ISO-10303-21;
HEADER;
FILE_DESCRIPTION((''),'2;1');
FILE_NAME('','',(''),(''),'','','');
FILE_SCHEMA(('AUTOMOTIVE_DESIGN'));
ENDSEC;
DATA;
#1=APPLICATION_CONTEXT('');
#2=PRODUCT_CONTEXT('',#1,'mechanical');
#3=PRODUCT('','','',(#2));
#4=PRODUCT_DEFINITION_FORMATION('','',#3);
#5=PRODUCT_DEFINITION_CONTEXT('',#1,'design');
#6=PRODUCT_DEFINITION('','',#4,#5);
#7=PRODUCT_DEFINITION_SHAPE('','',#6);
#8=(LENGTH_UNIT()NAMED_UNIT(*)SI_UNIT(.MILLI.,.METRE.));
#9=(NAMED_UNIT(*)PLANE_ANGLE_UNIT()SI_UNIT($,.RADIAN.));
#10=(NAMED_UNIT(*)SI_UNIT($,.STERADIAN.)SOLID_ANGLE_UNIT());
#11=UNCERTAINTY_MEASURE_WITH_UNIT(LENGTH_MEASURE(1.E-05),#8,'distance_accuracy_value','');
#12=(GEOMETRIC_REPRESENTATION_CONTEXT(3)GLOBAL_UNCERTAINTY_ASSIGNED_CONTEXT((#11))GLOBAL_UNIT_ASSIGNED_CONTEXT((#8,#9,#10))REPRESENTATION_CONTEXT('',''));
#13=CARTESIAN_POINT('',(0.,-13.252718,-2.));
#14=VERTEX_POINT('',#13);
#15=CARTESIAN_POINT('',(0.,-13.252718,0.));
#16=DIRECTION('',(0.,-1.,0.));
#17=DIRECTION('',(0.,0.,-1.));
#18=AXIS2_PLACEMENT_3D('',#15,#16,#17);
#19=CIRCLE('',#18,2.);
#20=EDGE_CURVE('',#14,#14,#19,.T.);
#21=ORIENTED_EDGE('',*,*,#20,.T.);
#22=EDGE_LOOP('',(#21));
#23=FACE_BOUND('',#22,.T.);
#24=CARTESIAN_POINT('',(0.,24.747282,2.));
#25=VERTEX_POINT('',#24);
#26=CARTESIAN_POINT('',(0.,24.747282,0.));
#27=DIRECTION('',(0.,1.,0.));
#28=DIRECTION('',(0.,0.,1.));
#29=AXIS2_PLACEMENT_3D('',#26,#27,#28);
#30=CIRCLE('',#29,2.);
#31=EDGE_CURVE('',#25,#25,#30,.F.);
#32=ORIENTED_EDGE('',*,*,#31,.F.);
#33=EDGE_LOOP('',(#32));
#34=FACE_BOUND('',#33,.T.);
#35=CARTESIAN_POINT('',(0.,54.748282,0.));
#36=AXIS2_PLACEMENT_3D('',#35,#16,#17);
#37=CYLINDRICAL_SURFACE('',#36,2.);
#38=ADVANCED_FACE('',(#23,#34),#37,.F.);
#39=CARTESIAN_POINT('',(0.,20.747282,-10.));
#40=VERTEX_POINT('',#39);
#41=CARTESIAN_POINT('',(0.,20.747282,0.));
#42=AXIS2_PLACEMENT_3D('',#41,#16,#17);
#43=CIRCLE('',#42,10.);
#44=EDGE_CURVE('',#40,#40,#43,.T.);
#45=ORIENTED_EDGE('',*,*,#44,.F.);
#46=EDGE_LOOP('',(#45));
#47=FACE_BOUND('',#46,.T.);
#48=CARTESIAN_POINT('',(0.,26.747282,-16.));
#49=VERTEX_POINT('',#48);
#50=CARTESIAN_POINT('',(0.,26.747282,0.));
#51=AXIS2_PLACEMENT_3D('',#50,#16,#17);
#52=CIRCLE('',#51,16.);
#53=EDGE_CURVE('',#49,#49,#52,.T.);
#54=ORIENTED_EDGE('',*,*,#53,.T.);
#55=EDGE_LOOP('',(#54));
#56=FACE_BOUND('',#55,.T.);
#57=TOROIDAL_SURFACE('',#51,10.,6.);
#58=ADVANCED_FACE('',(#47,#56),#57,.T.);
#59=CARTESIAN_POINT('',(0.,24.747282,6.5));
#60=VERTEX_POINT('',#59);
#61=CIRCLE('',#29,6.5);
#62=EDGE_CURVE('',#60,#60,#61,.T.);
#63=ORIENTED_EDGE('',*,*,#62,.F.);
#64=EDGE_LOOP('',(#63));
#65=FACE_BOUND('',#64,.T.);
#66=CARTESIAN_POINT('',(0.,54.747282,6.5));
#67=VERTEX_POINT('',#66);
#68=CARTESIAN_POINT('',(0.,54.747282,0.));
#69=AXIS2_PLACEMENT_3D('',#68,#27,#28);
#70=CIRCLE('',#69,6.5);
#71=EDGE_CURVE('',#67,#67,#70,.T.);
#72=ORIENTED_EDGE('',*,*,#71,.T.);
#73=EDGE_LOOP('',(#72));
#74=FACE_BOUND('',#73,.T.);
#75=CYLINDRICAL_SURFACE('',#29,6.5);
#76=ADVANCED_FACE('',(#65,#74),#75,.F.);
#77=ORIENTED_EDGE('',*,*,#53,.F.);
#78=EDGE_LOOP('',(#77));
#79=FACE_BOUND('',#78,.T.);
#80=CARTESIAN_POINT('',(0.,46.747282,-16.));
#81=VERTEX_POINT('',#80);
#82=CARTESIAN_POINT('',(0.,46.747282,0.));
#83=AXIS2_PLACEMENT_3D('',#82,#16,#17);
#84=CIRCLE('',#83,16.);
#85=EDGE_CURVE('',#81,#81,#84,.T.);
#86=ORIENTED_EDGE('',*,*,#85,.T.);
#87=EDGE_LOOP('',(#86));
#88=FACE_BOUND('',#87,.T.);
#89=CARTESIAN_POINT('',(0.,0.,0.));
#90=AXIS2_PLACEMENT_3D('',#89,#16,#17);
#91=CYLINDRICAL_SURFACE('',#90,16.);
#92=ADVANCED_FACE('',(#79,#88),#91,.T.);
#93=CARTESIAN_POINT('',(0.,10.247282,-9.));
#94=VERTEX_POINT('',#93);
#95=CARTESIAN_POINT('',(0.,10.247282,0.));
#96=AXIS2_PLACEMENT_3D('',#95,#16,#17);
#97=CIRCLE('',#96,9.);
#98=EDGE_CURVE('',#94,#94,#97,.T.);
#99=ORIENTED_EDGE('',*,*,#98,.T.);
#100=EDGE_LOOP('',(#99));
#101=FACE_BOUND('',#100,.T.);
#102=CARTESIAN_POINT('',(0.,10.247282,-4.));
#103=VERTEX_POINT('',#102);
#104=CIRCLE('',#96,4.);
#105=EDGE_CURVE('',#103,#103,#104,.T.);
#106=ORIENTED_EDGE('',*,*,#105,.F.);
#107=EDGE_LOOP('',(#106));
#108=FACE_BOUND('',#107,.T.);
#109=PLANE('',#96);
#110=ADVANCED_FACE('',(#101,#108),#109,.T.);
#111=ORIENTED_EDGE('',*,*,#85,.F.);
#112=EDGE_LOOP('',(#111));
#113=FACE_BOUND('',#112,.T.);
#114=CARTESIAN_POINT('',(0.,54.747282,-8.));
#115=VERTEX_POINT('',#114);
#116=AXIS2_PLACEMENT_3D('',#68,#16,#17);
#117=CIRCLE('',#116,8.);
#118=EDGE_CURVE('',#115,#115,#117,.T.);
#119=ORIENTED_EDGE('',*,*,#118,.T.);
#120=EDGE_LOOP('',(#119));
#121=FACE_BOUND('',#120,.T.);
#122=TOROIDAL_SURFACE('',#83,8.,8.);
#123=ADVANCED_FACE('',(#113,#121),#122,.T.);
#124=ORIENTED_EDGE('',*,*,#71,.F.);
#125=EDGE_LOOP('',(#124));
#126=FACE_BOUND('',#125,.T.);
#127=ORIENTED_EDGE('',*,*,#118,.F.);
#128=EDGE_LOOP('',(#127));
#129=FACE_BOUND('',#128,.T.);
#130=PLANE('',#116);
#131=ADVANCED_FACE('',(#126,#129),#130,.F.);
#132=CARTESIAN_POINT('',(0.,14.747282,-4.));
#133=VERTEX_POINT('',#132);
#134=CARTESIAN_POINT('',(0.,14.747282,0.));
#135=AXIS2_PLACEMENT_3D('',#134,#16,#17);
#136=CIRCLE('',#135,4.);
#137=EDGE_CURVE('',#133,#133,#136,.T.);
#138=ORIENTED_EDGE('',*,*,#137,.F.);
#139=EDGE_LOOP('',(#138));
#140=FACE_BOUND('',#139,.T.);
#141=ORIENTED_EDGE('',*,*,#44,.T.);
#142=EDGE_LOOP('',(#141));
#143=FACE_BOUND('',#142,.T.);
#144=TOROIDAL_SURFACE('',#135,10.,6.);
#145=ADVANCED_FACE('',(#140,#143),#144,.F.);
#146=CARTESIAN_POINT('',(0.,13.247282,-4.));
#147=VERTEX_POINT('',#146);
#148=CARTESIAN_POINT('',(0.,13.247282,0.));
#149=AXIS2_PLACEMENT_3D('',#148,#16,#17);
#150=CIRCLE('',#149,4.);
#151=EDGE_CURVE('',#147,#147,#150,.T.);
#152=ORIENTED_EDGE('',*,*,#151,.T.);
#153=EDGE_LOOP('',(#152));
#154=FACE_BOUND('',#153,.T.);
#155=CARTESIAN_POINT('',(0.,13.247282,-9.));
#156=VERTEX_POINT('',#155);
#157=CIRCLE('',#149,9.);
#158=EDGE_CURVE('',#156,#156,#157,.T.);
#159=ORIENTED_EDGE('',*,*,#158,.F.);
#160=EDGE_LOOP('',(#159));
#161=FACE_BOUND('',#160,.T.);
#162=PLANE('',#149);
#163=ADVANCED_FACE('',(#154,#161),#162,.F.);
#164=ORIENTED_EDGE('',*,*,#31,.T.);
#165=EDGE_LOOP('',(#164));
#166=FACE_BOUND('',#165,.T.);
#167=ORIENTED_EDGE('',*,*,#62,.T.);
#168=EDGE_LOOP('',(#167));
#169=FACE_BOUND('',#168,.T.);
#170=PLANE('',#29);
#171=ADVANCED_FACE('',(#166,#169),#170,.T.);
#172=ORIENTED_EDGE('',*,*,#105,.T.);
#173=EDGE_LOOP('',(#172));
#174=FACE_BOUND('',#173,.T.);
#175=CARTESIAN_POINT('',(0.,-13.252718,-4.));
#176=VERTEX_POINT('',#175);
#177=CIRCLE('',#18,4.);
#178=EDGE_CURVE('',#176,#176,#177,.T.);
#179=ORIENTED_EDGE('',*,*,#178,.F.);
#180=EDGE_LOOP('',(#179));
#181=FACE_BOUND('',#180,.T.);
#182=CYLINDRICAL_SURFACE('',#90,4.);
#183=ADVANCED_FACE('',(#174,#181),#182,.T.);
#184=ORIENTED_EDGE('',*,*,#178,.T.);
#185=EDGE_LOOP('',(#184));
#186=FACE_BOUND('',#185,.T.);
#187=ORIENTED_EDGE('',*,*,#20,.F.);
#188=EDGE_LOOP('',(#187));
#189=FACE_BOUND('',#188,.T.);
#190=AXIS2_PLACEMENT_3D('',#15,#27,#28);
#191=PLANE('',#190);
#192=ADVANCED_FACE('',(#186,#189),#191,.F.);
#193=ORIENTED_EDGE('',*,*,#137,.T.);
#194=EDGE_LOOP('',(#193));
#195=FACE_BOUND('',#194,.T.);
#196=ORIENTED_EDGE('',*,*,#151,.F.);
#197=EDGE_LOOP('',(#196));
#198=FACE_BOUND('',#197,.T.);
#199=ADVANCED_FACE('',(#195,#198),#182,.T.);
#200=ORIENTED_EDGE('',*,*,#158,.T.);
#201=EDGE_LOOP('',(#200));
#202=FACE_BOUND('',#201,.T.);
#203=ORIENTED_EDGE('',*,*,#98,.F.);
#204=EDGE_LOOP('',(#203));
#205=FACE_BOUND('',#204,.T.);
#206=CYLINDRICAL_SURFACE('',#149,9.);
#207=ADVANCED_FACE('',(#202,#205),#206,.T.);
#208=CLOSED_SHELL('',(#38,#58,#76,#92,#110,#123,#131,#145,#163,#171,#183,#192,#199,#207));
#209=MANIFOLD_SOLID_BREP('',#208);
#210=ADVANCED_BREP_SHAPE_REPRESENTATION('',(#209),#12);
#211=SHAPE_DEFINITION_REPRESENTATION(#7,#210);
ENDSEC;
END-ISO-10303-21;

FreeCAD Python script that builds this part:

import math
import FreeCAD as App
import Part
import Sketcher

V = App.Vector

doc = App.newDocument("Part")
body = doc.addObject("PartDesign::Body", "Body")

# Sketch on XY plane
sketch1 = body.newObject("Sketcher::SketchObject", "Sketch")
sketch1.AttachmentSupport = (doc.getObject("XY_Plane"), [""])
sketch1.MapMode = "FlatFace"
sketch1.addGeometry(Part.LineSegment(V(0, 54.7, 0), V(-8, 54.7, 0)), False)
sketch1.addGeometry(Part.ArcOfCircle(Part.Circle(V(-8, 46.7, 0), V(0, 0, 1), 8), math.radians(90), math.radians(180)), False)
sketch1.addGeometry(Part.LineSegment(V(-16, 46.7, 0), V(-16, 26.7, 0)), False)
sketch1.addGeometry(Part.ArcOfCircle(Part.Circle(V(-10, 26.7, 0), V(0, 0, 1), 6), math.radians(180), math.radians(270)), False)
sketch1.addGeometry(Part.ArcOfCircle(Part.Circle(V(-10, 14.7, 0), V(0, 0, 1), 6), math.radians(0), math.radians(90)), False)
sketch1.addGeometry(Part.LineSegment(V(-4, 14.7, 0), V(-4, -13.3, 0)), False)
sketch1.addGeometry(Part.LineSegment(V(-4, -13.3, 0), V(0, -13.3, 0)), False)
sketch1.addGeometry(Part.LineSegment(V(0, -13.3, 0), V(0, 54.7, 0)), False)
sketch1.addConstraint(Sketcher.Constraint("Tangent", 0, 2, 1, 1))
sketch1.addConstraint(Sketcher.Constraint("Tangent", 1, 2, 2, 1))
sketch1.addConstraint(Sketcher.Constraint("Tangent", 2, 2, 3, 1))
sketch1.addConstraint(Sketcher.Constraint("Tangent", 3, 2, 4, 2))
sketch1.addConstraint(Sketcher.Constraint("Tangent", 4, 1, 5, 1))
sketch1.addConstraint(Sketcher.Constraint("Coincident", 5, 2, 6, 1))
sketch1.addConstraint(Sketcher.Constraint("Coincident", 6, 2, 7, 1))
sketch1.addConstraint(Sketcher.Constraint("Coincident", 7, 2, 0, 1))
sketch1.addConstraint(Sketcher.Constraint("Horizontal", 0))
sketch1.addConstraint(Sketcher.Constraint("Vertical", 2))
sketch1.addConstraint(Sketcher.Constraint("Vertical", 5))
sketch1.addConstraint(Sketcher.Constraint("Horizontal", 6))
sketch1.addConstraint(Sketcher.Constraint("Vertical", 7))
sketch1.addConstraint(Sketcher.Constraint("Equal", 3, 4))
sketch1.addConstraint(Sketcher.Constraint("PointOnObject", 6, 2, -2))
sketch1.addConstraint(Sketcher.Constraint("Vertical", 3, 3, 4, 3))
sketch1.addConstraint(Sketcher.Constraint("Radius", 1, 8.0))
sketch1.addConstraint(Sketcher.Constraint("Radius", 3, 6.0))
sketch1.addConstraint(Sketcher.Constraint("DistanceX", 0, 2, 0, 1, 8.0))
sketch1.addConstraint(Sketcher.Constraint("DistanceY", 2, 2, 2, 1, 20.0))
sketch1.addConstraint(Sketcher.Constraint("DistanceY", 5, 2, 5, 1, 28.0))
sketch1.addConstraint(Sketcher.Constraint("DistanceY", -1, 1, 1, 3, 46.747282))
revolution = body.newObject("PartDesign::Revolution", "Revolution")
revolution.Profile = sketch1
revolution.ReferenceAxis = (sketch1, ["V_Axis"])
revolution.Angle = 360

# Sketch on XZ plane
sketch2 = body.newObject("Sketcher::SketchObject", "Sketch001")
sketch2.AttachmentSupport = (doc.getObject("XZ_Plane"), [""])
sketch2.MapMode = "FlatFace"
sketch2.AttachmentOffset = App.Placement(V(0, 0, -54.747282), App.Rotation())
sketch2.addGeometry(Part.Circle(V(0, 0, 0), V(0, 0, 1), 6), False)
sketch2.addConstraint(Sketcher.Constraint("Coincident", 0, 3, -1, 1))
sketch2.addConstraint(Sketcher.Constraint("Diameter", 0, 13.0))
pocket1 = body.newObject("PartDesign::Pocket", "Pocket")
pocket1.Profile = sketch2
pocket1.Length = 30
pocket1.Reversed = True

# Sketch on XZ plane
sketch3 = body.newObject("Sketcher::SketchObject", "Sketch002")
sketch3.AttachmentSupport = (doc.getObject("XZ_Plane"), [""])
sketch3.MapMode = "FlatFace"
sketch3.AttachmentOffset = App.Placement(V(0, 0, 13.252718), App.Rotation())
sketch3.addGeometry(Part.Circle(V(0, 0, 0), V(0, 0, 1), 2), False)
sketch3.addConstraint(Sketcher.Constraint("Coincident", 0, 3, -1, 1))
sketch3.addConstraint(Sketcher.Constraint("Diameter", 0, 4.0))
pocket2 = body.newObject("PartDesign::Pocket", "Pocket001")
pocket2.Profile = sketch3
pocket2.Type = "UpToFirst"

# Sketch on XZ plane
sketch4 = body.newObject("Sketcher::SketchObject", "Sketch003")
sketch4.AttachmentSupport = (doc.getObject("XZ_Plane"), [""])
sketch4.MapMode = "FlatFace"
sketch4.AttachmentOffset = App.Placement(V(0, 0, -10.247282), App.Rotation())
sketch4.addGeometry(Part.Circle(V(0, 0, 0), V(0, 0, 1), 9), False)
sketch4.addGeometry(Part.Circle(V(0, 0, 0), V(0, 0, 1), 2), False)
sketch4.addConstraint(Sketcher.Constraint("Coincident", 0, 3, -1, 1))
sketch4.addConstraint(Sketcher.Constraint("Coincident", 1, 3, -1, 1))
sketch4.addConstraint(Sketcher.Constraint("Diameter", 0, 18.0))
sketch4.addConstraint(Sketcher.Constraint("Diameter", 1, 4.0))
pad1 = body.newObject("PartDesign::Pad", "Pad")
pad1.Profile = sketch4
pad1.Length = 3
pad1.Reversed = True

doc.recompute()
